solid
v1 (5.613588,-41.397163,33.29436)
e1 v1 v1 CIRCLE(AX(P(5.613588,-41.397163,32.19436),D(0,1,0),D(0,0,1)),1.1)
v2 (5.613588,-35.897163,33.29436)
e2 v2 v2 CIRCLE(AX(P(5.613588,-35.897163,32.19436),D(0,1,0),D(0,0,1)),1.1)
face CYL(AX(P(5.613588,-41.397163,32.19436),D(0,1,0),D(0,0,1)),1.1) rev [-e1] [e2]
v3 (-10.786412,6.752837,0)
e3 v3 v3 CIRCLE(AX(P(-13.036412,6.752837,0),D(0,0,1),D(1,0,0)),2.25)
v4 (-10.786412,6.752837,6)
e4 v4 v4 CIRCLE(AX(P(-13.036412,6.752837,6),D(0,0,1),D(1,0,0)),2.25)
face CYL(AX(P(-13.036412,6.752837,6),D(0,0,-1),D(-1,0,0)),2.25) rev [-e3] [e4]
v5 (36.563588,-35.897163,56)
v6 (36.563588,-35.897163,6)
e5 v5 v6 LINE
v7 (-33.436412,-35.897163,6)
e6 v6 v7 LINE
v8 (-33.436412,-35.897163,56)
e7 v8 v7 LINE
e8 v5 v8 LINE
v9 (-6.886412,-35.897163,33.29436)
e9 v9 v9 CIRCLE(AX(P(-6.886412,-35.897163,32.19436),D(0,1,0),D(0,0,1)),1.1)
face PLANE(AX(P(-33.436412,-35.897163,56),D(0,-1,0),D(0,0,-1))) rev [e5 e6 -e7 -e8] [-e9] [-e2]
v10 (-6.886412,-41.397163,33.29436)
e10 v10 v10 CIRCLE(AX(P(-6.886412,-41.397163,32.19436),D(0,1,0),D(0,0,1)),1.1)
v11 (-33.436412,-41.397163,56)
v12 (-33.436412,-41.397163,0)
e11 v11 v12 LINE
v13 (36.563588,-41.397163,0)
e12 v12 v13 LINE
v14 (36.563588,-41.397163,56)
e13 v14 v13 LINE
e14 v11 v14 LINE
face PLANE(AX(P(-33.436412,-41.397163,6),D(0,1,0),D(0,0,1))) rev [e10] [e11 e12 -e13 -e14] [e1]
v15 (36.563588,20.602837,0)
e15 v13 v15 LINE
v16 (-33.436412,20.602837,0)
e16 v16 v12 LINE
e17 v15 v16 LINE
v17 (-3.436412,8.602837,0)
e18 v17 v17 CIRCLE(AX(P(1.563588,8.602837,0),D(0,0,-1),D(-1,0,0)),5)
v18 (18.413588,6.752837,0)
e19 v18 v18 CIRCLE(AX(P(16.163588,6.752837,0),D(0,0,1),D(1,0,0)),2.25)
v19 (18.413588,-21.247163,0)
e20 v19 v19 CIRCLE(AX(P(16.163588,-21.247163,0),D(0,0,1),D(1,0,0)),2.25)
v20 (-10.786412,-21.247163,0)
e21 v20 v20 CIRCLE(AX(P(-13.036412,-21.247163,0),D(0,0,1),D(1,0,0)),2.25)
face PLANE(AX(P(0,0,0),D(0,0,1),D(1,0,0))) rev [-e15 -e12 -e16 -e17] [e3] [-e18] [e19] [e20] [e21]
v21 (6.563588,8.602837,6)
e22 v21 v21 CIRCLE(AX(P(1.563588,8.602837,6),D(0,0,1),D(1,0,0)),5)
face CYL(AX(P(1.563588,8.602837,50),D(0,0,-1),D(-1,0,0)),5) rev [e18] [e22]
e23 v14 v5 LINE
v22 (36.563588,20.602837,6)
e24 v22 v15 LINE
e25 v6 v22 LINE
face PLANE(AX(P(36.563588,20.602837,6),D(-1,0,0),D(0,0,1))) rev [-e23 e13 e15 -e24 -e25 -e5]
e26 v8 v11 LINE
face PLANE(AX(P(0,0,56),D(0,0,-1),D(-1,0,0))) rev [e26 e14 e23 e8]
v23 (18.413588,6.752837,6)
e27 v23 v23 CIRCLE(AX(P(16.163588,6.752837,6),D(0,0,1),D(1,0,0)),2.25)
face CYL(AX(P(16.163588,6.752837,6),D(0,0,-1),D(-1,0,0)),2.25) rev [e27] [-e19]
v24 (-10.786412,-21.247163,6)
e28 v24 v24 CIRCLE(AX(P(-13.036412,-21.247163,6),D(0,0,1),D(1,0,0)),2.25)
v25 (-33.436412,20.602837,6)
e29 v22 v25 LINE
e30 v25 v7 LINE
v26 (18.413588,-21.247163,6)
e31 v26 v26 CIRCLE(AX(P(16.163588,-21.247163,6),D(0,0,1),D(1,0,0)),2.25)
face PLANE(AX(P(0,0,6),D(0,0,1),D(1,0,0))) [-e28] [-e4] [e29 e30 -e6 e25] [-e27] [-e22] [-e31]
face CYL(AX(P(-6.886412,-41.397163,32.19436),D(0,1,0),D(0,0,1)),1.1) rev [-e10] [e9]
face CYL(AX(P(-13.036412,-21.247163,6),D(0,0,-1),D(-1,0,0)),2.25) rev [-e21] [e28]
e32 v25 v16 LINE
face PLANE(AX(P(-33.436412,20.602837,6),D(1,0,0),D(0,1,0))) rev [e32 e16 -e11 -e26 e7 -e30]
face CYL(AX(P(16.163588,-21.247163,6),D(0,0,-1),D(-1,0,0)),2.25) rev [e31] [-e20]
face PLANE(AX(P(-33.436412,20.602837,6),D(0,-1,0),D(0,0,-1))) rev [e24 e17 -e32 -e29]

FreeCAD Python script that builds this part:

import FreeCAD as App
import Part
import Sketcher
from FreeCAD import Vector

doc = App.newDocument("Part")
body = doc.addObject("PartDesign::Body", "Body")

# Sketch on XY plane
sketch1 = doc.addObject("Sketcher::SketchObject", "Sketch")
body.addObject(sketch1)
sketch1.AttachmentSupport = (doc.XY_Plane, [""])
sketch1.MapMode = "FlatFace"
sketch1.addGeometry([
    Part.LineSegment(Vector(-33.4, 20.6, 0), Vector(-33.4, -41.4, 0)),  # 0
    Part.LineSegment(Vector(-33.4, -41.4, 0), Vector(36.6, -41.4, 0)),  # 1
    Part.LineSegment(Vector(36.6, -41.4, 0), Vector(36.6, 20.6, 0)),  # 2
    Part.LineSegment(Vector(36.6, 20.6, 0), Vector(-33.4, 20.6, 0)),  # 3
    Part.Circle(Vector(-13, -21.2, 0), Vector(0, 0, 1), 2.2),  # 4
    Part.Circle(Vector(16.2, -21.2, 0), Vector(0, 0, 1), 2.2),  # 5
    Part.Circle(Vector(-13, 6.8, 0), Vector(0, 0, 1), 2.2),  # 6
    Part.Circle(Vector(16.2, 6.8, 0), Vector(0, 0, 1), 2.2),  # 7
], False)
sketch1.addConstraint([
    Sketcher.Constraint("Coincident", 0, 2, 1, 1),
    Sketcher.Constraint("Coincident", 1, 2, 2, 1),
    Sketcher.Constraint("Coincident", 2, 2, 3, 1),
    Sketcher.Constraint("Coincident", 3, 2, 0, 1),
    Sketcher.Constraint("Vertical", 0),
    Sketcher.Constraint("Horizontal", 1),
    Sketcher.Constraint("Vertical", 2),
    Sketcher.Constraint("Horizontal", 3),
    Sketcher.Constraint("Equal", 4, 5),
    Sketcher.Constraint("Equal", 5, 6),
    Sketcher.Constraint("Equal", 6, 7),
    Sketcher.Constraint("Horizontal", 4, 3, 5, 3),
    Sketcher.Constraint("Horizontal", 6, 3, 7, 3),
    Sketcher.Constraint("Vertical", 4, 3, 6, 3),
    Sketcher.Constraint("Vertical", 5, 3, 7, 3),
    Sketcher.Constraint("Diameter", 4, 4.5),
    Sketcher.Constraint("DistanceX", 1, 1, 1, 2, 70.0),
    Sketcher.Constraint("DistanceY", 0, 2, 0, 1, 62.0),
    Sketcher.Constraint("DistanceY", 4, 3, 6, 3, 28.0),
    Sketcher.Constraint("DistanceX", 4, 3, 5, 3, 29.2),
    Sketcher.Constraint("DistanceX", 0, 2, 4, 3, 20.4),
    Sketcher.Constraint("DistanceY", 0, 2, 4, 3, 20.15),
    Sketcher.Constraint("DistanceX", 4, 3, -1, 1, 13.036412),
    Sketcher.Constraint("DistanceY", 4, 3, -1, 1, 21.247163),
])
pad1 = doc.addObject("PartDesign::Pad", "Pad")
body.addObject(pad1)
pad1.Profile = sketch1
pad1.Length = 6

# Sketch on XY plane
sketch2 = doc.addObject("Sketcher::SketchObject", "Sketch001")
body.addObject(sketch2)
sketch2.AttachmentSupport = (doc.XY_Plane, [""])
sketch2.MapMode = "FlatFace"
sketch2.AttachmentOffset = App.Placement(Vector(0, 0, 6), App.Rotation())
sketch2.addGeometry([
    Part.LineSegment(Vector(-33, -36, 0), Vector(-33, -41, 0)),
    Part.LineSegment(Vector(-33, -41, 0), Vector(37, -41, 0)),
    Part.LineSegment(Vector(37, -41, 0), Vector(37, -36, 0)),
    Part.LineSegment(Vector(37, -36, 0), Vector(-33, -36, 0)),
], False)
sketch2.addConstraint([
    Sketcher.Constraint("Coincident", 0, 2, 1, 1),
    Sketcher.Constraint("Coincident", 1, 2, 2, 1),
    Sketcher.Constraint("Coincident", 2, 2, 3, 1),
    Sketcher.Constraint("Coincident", 3, 2, 0, 1),
    Sketcher.Constraint("Vertical", 0),
    Sketcher.Constraint("Horizontal", 1),
    Sketcher.Constraint("Vertical", 2),
    Sketcher.Constraint("Horizontal", 3),
    Sketcher.Constraint("DistanceX", 1, 1, 1, 2, 70.0),
    Sketcher.Constraint("DistanceY", 0, 2, 0, 1, 5.5),
    Sketcher.Constraint("DistanceX", 0, 2, -1, 1, 33.436412),
    Sketcher.Constraint("DistanceY", 0, 2, -1, 1, 41.397163),
])
pad2 = doc.addObject("PartDesign::Pad", "Pad001")
body.addObject(pad2)
pad2.Profile = sketch2
pad2.Length = 50

# Sketch on XZ plane
sketch3 = doc.addObject("Sketcher::SketchObject", "Sketch002")
body.addObject(sketch3)
sketch3.AttachmentSupport = (doc.XZ_Plane, [""])
sketch3.MapMode = "FlatFace"
sketch3.AttachmentOffset = App.Placement(Vector(0, 0, 35.897163), App.Rotation())
sketch3.addGeometry([
    Part.Circle(Vector(-6.9, 32.2, 0), Vector(0, 0, 1), 1.1),
    Part.Circle(Vector(5.6, 32.2, 0), Vector(0, 0, 1), 1.1),
], False)
sketch3.addConstraint([
    Sketcher.Constraint("Equal", 0, 1),
    Sketcher.Constraint("Horizontal", 0, 3, 1, 3),
    Sketcher.Constraint("Diameter", 0, 2.2),
    Sketcher.Constraint("DistanceX", 0, 3, 1, 3, 12.5),
    Sketcher.Constraint("DistanceY", -1, 1, 0, 3, 32.19436),
    Sketcher.Constraint("DistanceX", 0, 3, -1, 1, 6.886412),
])
pocket1 = doc.addObject("PartDesign::Pocket", "Pocket")
body.addObject(pocket1)
pocket1.Profile = sketch3
pocket1.Type = "ThroughAll"
pocket1.Reversed = True

# Sketch on XY plane
sketch4 = doc.addObject("Sketcher::SketchObject", "Sketch003")
body.addObject(sketch4)
sketch4.AttachmentSupport = (doc.XY_Plane, [""])
sketch4.MapMode = "FlatFace"
sketch4.addGeometry(Part.Circle(Vector(2, 9, 0), Vector(0, 0, 1), 5), False)
sketch4.addConstraint([
    Sketcher.Constraint("Diameter", 0, 10.0),
    Sketcher.Constraint("DistanceX", -1, 1, 0, 3, 1.563588),
    Sketcher.Constraint("DistanceY", -1, 1, 0, 3, 8.602837),
])
pocket2 = doc.addObject("PartDesign::Pocket", "Pocket001")
body.addObject(pocket2)
pocket2.Profile = sketch4
pocket2.Length = 50
pocket2.Reversed = True

doc.recompute()
